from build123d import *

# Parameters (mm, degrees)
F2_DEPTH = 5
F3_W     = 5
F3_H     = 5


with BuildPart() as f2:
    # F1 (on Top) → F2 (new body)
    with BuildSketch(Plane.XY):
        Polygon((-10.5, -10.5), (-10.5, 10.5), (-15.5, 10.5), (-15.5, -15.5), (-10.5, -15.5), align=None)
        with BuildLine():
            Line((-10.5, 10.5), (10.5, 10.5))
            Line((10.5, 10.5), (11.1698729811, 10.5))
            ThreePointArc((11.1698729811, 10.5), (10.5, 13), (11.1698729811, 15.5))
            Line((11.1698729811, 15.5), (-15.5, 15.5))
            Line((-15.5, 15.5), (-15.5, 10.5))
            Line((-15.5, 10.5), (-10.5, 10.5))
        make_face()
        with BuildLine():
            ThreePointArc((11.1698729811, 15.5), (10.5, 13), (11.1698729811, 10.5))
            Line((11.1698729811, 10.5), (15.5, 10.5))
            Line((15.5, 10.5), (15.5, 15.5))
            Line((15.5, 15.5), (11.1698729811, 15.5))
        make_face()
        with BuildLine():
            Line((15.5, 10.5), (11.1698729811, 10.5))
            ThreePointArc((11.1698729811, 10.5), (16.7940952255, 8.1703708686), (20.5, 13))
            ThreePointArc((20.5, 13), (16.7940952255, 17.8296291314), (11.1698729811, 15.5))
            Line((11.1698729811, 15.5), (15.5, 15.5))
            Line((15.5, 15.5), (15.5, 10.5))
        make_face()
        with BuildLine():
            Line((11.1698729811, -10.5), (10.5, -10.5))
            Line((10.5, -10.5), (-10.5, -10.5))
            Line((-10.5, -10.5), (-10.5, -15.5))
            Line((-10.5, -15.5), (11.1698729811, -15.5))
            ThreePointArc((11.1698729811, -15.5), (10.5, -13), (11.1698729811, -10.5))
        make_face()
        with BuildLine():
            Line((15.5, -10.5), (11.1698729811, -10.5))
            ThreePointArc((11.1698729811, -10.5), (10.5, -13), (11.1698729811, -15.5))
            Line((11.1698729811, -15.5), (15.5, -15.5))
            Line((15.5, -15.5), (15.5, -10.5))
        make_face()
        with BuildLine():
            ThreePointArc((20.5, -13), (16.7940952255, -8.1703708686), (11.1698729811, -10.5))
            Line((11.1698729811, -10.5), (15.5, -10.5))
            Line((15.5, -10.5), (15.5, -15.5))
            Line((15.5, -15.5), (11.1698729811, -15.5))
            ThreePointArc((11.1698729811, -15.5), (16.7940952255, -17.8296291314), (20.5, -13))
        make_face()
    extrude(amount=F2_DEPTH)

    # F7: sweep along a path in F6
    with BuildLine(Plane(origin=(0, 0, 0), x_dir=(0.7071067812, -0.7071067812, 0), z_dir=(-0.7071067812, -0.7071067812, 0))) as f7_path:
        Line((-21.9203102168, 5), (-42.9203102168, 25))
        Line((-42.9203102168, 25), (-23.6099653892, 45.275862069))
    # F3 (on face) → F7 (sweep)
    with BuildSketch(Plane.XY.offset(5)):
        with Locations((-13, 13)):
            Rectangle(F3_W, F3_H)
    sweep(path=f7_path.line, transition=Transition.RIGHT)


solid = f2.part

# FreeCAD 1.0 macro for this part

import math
import FreeCAD as App
import Part
import Sketcher

V = App.Vector


def add_polygon(sketch, points):
    """Adds a closed chain of lines whose ends are joined by coincident constraints."""
    first, n = sketch.GeometryCount, len(points)
    for a, b in zip(points, points[1:] + points[:1]):
        sketch.addGeometry(Part.LineSegment(App.Vector(*a, 0), App.Vector(*b, 0)), False)
    for i in range(n):
        sketch.addConstraint(Sketcher.Constraint("Coincident", first + i, 2, first + (i + 1) % n, 1))

doc = App.newDocument("Part")
body = doc.addObject("PartDesign::Body", "Body")

# Sketch on XY plane
sketch1 = body.newObject("Sketcher::SketchObject", "Sketch")
sketch1.AttachmentSupport = (doc.getObject("XY_Plane"), [""])
sketch1.MapMode = "FlatFace"
sketch1.addGeometry(Part.LineSegment(V(-16, -16, 0), V(11, -16, 0)), False)
sketch1.addGeometry(Part.ArcOfCircle(Part.Circle(V(16, -13, 0), V(0, 0, 1), 5), math.radians(-150), math.radians(0)), False)
sketch1.addGeometry(Part.ArcOfCircle(Part.Circle(V(16, -13, 0), V(0, 0, 1), 5), math.radians(0), math.radians(150)), False)
sketch1.addGeometry(Part.LineSegment(V(11, -10, 0), V(-10, -10, 0)), False)
sketch1.addGeometry(Part.LineSegment(V(-10, -10, 0), V(-10, 10, 0)), False)
sketch1.addGeometry(Part.LineSegment(V(-10, 10, 0), V(11, 10, 0)), False)
sketch1.addGeometry(Part.ArcOfCircle(Part.Circle(V(16, 13, 0), V(0, 0, 1), 5), math.radians(-150), math.radians(0)), False)
sketch1.addGeometry(Part.ArcOfCircle(Part.Circle(V(16, 13, 0), V(0, 0, 1), 5), math.radians(0), math.radians(150)), False)
sketch1.addGeometry(Part.LineSegment(V(11, 16, 0), V(-16, 16, 0)), False)
sketch1.addGeometry(Part.LineSegment(V(-16, 16, 0), V(-16, -16, 0)), False)
sketch1.addConstraint(Sketcher.Constraint("Coincident", 0, 2, 1, 1))
sketch1.addConstraint(Sketcher.Constraint("Tangent", 1, 2, 2, 1))
sketch1.addConstraint(Sketcher.Constraint("Coincident", 2, 2, 3, 1))
sketch1.addConstraint(Sketcher.Constraint("Coincident", 3, 2, 4, 1))
sketch1.addConstraint(Sketcher.Constraint("Coincident", 4, 2, 5, 1))
sketch1.addConstraint(Sketcher.Constraint("Coincident", 5, 2, 6, 1))
sketch1.addConstraint(Sketcher.Constraint("Tangent", 6, 2, 7, 1))
sketch1.addConstraint(Sketcher.Constraint("Coincident", 7, 2, 8, 1))
sketch1.addConstraint(Sketcher.Constraint("Coincident", 8, 2, 9, 1))
sketch1.addConstraint(Sketcher.Constraint("Coincident", 9, 2, 0, 1))
sketch1.addConstraint(Sketcher.Constraint("Horizontal", 0))
sketch1.addConstraint(Sketcher.Constraint("Horizontal", 3))
sketch1.addConstraint(Sketcher.Constraint("Vertical", 4))
sketch1.addConstraint(Sketcher.Constraint("Horizontal", 5))
sketch1.addConstraint(Sketcher.Constraint("Horizontal", 8))
sketch1.addConstraint(Sketcher.Constraint("Vertical", 9))
sketch1.addConstraint(Sketcher.Constraint("Equal", 1, 2))
sketch1.addConstraint(Sketcher.Constraint("Equal", 2, 6))
sketch1.addConstraint(Sketcher.Constraint("Equal", 6, 7))
sketch1.addConstraint(Sketcher.Constraint("Symmetric", 1, 3, 6, 3, -1))
sketch1.addConstraint(Sketcher.Constraint("Horizontal", 2, 3, 1, 2))
sketch1.addConstraint(Sketcher.Constraint("Horizontal", 7, 3, 6, 2))
sketch1.addConstraint(Sketcher.Constraint("Vertical", 0, 2, 2, 2))
sketch1.addConstraint(Sketcher.Constraint("Vertical", 2, 2, 5, 2))
sketch1.addConstraint(Sketcher.Constraint("Vertical", 5, 2, 7, 2))
sketch1.addConstraint(Sketcher.Constraint("Radius", 1, 5.0))
sketch1.addConstraint(Sketcher.Constraint("DistanceY", 4, 1, 4, 2, 21.0))
sketch1.addConstraint(Sketcher.Constraint("DistanceY", 9, 2, 9, 1, 31.0))
sketch1.addConstraint(Sketcher.Constraint("DistanceX", 3, 2, 1, 3, 26.0))
sketch1.addConstraint(Sketcher.Constraint("DistanceX", 8, 2, 4, 2, 5.0))
sketch1.addConstraint(Sketcher.Constraint("DistanceX", -1, 1, 1, 3, 15.5))
pad1 = body.newObject("PartDesign::Pad", "Pad")
pad1.Profile = sketch1
pad1.Length = 5

# Sketch on XY plane
sketch2 = body.newObject("Sketcher::SketchObject", "Sketch001")
sketch2.AttachmentSupport = (doc.getObject("XY_Plane"), [""])
sketch2.MapMode = "FlatFace"
sketch2.AttachmentOffset = App.Placement(V(0, 0, 5), App.Rotation())
add_polygon(sketch2, [(-16, 16), (-16, 10), (-10, 10), (-10, 16)])  # lines 0-3
sketch2.addConstraint(Sketcher.Constraint("Vertical", 0))
sketch2.addConstraint(Sketcher.Constraint("Horizontal", 1))
sketch2.addConstraint(Sketcher.Constraint("Vertical", 2))
sketch2.addConstraint(Sketcher.Constraint("Horizontal", 3))
sketch2.addConstraint(Sketcher.Constraint("Equal", 3, 0))
sketch2.addConstraint(Sketcher.Constraint("DistanceX", 1, 1, 1, 2, 5.0))
sketch2.addConstraint(Sketcher.Constraint("DistanceX", 0, 2, -1, 1, 15.5))
sketch2.addConstraint(Sketcher.Constraint("DistanceY", -1, 1, 0, 2, 10.5))

# Sketch on an angled plane
sketch3 = body.newObject("Sketcher::SketchObject", "Sketch002")
sketch3.Placement = App.Placement(V(0, 0, 0), App.Rotation(V(0.707106781, -0.707106781, 0), V(0, 0, 0.999999999), V(-0.707106781, -0.707106781, 0), "ZXY"))
sketch3.addGeometry(Part.LineSegment(V(-22, 5, 0), V(-43, 25, 0)), False)
sketch3.addGeometry(Part.LineSegment(V(-43, 25, 0), V(-24, 45, 0)), False)
sketch3.addConstraint(Sketcher.Constraint("Coincident", 0, 2, 1, 1))
sketch3.addConstraint(Sketcher.Constraint("Perpendicular", 0, 1))
sketch3.addConstraint(Sketcher.Constraint("Distance", 0, 29.0))
sketch3.addConstraint(Sketcher.Constraint("Distance", 1, 28.0))
sketch3.addConstraint(Sketcher.Constraint("DistanceY", -1, 1, 0, 1, 5.0))
sketch3.addConstraint(Sketcher.Constraint("DistanceY", -1, 1, 0, 2, 25.0))
sketch3.addConstraint(Sketcher.Constraint("DistanceX", 0, 1, -1, 1, 21.92031))
doc.recompute()

additivepipe = body.newObject("PartDesign::AdditivePipe", "AdditivePipe")
additivepipe.Profile = sketch2
additivepipe.Spine = (sketch3, ["Edge1", "Edge2"])
additivepipe.Transition = "Right corner"

doc.recompute()
